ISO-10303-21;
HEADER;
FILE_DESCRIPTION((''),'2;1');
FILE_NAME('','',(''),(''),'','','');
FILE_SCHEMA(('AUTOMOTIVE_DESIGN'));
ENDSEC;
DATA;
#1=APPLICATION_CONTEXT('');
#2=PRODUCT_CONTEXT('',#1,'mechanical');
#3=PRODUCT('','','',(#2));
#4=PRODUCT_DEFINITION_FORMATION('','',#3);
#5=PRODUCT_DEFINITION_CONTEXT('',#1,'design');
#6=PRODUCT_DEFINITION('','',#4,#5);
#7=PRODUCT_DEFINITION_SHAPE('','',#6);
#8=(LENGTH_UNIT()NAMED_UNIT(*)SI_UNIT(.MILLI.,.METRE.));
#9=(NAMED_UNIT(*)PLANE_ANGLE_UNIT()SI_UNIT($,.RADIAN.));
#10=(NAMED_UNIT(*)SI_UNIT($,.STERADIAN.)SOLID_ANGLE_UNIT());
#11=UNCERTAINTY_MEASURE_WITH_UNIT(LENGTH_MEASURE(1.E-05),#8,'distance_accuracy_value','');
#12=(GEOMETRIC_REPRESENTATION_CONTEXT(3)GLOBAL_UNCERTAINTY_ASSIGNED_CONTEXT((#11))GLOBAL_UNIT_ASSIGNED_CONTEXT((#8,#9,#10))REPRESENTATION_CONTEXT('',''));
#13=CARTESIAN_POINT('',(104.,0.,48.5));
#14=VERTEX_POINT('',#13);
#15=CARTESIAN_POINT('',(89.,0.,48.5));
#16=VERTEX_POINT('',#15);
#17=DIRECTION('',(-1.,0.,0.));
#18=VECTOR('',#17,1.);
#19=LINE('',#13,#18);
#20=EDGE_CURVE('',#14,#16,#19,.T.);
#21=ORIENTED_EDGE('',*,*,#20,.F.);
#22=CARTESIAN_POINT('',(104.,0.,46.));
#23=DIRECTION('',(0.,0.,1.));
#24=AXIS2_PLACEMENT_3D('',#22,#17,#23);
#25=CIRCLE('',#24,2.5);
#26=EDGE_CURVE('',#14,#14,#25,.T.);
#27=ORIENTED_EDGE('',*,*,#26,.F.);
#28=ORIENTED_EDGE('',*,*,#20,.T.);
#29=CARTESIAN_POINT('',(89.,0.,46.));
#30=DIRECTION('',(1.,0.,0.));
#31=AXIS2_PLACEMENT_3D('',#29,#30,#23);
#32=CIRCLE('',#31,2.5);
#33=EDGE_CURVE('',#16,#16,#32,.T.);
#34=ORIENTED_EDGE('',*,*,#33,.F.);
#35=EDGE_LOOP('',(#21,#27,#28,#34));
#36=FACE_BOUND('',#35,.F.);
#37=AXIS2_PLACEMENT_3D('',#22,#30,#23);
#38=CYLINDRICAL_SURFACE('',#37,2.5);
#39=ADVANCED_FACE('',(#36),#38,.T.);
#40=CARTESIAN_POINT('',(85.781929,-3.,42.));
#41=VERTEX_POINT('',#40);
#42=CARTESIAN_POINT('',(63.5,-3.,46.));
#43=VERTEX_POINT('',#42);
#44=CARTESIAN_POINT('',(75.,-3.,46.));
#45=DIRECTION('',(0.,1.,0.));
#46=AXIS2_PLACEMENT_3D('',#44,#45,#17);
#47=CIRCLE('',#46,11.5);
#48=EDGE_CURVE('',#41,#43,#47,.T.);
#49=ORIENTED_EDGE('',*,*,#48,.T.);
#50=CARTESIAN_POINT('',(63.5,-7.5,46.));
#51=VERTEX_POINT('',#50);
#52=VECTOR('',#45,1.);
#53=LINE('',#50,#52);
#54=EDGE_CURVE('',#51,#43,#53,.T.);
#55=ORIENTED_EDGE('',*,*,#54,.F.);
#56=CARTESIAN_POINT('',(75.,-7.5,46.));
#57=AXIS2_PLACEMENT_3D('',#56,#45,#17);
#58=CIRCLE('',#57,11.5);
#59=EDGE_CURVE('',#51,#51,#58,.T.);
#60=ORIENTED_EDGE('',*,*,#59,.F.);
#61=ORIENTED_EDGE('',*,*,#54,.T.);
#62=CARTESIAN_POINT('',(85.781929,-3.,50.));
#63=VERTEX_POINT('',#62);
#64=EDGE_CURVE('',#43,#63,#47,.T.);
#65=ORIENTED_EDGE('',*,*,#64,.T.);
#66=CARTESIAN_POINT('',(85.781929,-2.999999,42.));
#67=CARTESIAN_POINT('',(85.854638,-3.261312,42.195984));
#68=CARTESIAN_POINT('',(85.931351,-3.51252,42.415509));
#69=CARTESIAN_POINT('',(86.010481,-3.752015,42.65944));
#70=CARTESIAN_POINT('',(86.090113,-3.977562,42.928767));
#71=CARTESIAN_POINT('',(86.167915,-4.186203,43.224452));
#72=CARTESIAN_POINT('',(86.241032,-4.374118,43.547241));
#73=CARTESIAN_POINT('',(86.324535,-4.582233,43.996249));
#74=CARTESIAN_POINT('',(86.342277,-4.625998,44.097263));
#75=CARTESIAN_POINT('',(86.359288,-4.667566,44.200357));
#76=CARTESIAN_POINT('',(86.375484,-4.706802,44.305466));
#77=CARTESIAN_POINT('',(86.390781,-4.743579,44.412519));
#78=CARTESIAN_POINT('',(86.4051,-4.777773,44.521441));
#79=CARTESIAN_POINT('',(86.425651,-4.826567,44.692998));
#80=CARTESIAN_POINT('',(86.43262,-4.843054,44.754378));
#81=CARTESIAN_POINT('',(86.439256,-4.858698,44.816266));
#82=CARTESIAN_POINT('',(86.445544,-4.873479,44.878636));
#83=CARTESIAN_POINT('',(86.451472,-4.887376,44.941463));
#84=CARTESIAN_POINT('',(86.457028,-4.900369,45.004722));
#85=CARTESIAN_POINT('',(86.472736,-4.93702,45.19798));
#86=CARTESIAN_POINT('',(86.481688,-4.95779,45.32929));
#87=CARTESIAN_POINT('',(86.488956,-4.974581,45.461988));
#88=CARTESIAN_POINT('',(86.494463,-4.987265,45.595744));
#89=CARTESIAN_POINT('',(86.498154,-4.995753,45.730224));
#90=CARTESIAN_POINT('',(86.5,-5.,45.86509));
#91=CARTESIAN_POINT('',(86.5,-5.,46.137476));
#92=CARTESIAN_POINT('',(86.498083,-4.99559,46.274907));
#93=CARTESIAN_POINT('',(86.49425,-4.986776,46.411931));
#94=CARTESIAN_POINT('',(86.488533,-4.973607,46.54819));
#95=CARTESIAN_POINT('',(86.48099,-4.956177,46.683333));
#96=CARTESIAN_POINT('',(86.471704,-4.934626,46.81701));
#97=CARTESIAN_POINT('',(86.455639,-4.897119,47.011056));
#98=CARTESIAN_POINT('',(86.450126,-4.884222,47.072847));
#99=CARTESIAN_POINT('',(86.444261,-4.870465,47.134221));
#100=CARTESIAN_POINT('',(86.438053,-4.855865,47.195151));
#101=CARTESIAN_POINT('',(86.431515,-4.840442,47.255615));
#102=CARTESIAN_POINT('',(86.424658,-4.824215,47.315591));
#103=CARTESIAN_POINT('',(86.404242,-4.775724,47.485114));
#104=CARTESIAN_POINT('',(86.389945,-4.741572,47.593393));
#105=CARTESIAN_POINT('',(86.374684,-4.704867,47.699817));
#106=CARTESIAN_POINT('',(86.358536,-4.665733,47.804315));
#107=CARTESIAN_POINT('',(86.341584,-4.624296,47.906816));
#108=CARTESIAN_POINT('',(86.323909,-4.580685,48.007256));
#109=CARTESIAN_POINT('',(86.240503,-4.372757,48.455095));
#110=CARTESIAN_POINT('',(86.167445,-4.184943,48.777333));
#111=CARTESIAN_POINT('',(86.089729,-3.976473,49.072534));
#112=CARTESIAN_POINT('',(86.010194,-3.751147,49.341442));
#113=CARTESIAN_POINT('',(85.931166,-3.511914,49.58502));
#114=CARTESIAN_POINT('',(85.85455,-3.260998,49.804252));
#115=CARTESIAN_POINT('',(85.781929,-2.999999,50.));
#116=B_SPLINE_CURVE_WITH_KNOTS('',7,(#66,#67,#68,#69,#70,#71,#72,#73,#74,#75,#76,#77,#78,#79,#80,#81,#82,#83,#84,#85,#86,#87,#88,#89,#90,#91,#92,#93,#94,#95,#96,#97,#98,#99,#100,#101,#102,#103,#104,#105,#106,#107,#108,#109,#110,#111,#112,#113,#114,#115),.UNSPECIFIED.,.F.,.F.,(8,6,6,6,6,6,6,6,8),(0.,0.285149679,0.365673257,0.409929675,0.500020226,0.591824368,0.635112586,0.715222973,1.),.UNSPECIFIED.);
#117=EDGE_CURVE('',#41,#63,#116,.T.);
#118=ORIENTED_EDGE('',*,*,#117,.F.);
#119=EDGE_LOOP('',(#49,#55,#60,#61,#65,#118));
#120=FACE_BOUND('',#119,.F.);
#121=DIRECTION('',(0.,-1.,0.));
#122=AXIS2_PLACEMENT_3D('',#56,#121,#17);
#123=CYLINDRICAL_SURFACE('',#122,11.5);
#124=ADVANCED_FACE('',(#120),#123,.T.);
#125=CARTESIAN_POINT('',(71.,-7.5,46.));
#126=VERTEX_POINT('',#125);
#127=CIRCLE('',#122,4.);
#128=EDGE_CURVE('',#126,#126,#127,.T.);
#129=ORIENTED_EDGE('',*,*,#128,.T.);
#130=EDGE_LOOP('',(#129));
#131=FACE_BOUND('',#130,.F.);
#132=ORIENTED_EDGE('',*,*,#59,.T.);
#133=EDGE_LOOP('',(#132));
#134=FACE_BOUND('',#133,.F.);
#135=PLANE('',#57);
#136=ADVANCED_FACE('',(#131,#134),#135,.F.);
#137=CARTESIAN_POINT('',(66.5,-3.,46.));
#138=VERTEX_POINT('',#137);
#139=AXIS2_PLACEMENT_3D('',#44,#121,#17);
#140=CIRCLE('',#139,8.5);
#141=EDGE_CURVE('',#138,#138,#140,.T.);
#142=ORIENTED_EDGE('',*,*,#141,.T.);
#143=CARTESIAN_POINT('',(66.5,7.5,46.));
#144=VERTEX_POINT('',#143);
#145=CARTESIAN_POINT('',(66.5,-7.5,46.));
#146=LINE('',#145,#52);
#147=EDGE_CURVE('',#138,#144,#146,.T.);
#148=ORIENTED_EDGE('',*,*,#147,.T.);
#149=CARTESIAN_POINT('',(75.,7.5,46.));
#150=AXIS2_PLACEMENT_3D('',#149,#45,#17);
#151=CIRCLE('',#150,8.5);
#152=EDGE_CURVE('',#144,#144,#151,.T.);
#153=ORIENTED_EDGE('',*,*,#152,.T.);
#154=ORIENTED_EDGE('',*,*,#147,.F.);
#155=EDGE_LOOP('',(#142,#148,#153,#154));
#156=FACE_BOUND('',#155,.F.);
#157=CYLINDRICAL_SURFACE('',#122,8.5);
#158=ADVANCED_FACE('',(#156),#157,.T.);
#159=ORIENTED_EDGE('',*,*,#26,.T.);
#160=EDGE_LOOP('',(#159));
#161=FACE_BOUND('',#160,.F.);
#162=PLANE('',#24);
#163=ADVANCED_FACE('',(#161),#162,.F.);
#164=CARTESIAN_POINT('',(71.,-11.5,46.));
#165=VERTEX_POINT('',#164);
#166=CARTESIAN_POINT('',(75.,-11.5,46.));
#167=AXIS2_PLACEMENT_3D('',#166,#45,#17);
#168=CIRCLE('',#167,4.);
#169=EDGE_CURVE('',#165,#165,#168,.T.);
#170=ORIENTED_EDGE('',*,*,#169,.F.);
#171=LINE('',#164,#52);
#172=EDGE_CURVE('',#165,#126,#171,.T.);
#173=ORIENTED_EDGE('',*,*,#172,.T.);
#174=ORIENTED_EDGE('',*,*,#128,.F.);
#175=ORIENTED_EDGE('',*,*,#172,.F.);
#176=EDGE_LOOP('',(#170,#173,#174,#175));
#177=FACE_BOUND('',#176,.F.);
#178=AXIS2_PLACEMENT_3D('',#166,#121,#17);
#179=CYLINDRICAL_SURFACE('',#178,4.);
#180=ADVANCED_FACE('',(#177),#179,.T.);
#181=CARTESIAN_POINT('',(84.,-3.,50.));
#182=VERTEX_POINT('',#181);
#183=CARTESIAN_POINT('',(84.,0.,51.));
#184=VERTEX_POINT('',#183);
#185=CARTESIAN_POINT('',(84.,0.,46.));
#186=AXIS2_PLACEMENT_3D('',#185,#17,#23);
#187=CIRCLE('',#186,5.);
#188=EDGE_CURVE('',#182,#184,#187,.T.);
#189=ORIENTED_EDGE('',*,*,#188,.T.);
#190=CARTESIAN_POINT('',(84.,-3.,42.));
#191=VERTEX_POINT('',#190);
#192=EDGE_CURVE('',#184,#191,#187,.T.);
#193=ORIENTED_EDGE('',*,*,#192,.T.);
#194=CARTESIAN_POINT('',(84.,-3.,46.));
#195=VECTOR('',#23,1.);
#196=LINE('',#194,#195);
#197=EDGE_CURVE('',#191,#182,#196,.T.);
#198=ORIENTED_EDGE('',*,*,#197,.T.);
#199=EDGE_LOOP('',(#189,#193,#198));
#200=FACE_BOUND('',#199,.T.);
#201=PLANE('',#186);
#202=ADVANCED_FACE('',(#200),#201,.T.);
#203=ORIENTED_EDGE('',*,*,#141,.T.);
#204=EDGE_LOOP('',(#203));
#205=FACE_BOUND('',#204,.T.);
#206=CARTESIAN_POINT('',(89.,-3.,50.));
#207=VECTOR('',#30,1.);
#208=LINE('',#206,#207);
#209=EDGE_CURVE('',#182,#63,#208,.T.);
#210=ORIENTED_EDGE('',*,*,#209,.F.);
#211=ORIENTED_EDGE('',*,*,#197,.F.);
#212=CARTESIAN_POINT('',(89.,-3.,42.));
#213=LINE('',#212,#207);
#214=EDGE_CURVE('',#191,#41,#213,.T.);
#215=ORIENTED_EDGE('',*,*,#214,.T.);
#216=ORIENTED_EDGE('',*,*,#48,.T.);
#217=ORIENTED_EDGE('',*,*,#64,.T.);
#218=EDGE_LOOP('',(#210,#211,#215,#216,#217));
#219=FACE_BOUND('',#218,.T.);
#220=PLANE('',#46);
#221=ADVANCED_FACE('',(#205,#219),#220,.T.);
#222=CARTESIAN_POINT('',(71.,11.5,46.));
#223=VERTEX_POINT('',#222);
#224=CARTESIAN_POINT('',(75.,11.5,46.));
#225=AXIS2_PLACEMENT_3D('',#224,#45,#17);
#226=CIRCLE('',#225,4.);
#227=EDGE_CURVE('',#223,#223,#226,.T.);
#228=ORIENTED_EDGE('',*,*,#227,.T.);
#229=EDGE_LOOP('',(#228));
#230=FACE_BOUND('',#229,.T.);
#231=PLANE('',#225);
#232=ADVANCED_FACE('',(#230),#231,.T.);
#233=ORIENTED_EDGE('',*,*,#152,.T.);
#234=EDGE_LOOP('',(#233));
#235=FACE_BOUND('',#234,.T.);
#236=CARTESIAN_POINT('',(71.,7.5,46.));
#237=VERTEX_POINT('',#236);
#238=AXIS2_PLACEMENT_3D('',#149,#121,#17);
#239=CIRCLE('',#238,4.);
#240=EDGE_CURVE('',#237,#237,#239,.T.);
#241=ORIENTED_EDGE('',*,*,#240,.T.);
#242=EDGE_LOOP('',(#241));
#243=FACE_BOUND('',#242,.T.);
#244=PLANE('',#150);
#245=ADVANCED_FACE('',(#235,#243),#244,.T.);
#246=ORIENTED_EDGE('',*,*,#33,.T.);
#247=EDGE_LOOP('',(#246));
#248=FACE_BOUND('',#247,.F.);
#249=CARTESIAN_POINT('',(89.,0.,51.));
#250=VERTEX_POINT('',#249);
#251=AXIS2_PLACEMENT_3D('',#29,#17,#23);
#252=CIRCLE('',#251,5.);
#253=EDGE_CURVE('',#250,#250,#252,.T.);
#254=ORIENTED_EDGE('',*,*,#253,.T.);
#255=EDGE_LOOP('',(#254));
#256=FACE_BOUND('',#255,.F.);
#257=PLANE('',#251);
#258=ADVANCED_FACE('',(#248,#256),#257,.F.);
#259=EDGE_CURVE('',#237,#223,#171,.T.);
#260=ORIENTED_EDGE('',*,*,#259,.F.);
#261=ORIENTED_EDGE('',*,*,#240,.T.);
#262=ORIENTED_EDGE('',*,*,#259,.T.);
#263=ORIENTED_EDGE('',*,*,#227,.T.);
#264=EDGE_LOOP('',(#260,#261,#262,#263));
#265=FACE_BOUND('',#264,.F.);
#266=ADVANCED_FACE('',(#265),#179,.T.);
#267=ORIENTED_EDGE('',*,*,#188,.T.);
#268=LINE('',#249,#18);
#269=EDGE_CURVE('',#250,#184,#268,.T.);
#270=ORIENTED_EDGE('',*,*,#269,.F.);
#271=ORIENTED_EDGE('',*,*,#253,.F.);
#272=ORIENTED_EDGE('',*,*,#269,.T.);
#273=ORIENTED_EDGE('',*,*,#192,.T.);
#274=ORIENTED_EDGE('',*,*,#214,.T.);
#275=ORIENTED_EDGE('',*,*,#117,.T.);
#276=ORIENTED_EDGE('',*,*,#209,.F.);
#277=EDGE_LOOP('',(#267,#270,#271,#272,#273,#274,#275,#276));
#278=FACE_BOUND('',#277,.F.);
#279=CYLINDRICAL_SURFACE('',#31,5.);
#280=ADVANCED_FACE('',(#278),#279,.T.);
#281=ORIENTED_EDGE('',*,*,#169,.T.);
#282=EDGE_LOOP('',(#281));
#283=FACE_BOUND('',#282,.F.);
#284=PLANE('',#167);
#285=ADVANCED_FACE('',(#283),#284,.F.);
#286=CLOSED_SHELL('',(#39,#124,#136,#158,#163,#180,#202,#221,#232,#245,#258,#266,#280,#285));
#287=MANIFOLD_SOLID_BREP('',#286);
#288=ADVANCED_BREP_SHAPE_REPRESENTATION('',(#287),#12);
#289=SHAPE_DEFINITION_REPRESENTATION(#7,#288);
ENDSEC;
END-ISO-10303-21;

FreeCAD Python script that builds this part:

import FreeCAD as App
import Part
import Sketcher

doc = App.newDocument("Part")
params = doc.addObject("Spreadsheet::Sheet", "Params")
for row, (alias, value) in enumerate([
    ("sketch1_diameter", "10 mm"),
    ("pad1_length", "5 mm"),
    ("sketch2_diameter", "5 mm"),
    ("pad2_length", "20 mm"),
    ("sketch3_diameter", "23 mm"),
    ("pad3_length", "4.5 mm"),
    ("sketch4_diameter", "8 mm"),
    ("pad4_length", "23 mm"),
    ("sketch5_diameter", "17 mm"),
    ("pad5_length", "15 mm"),
], start=1):
    params.set(f"A{row}", alias)
    params.set(f"B{row}", "=" + value)
    params.setAlias(f"B{row}", alias)

body = doc.addObject("PartDesign::Body", "Body")

sketch1 = body.newObject("Sketcher::SketchObject", "Sketch")
sketch1.AttachmentSupport = (doc.getObject("YZ_Plane"), [""])
sketch1.MapMode = "FlatFace"
sketch1.AttachmentOffset = App.Placement(App.Vector(0, 0, 15), App.Rotation())
sketch1.addGeometry(Part.Circle(App.Vector(0, 0, 0), App.Vector(0, 0, 1), 5), False)
sketch1.addConstraint([
    Sketcher.Constraint("Coincident", 0, 3, -1, 1),
    Sketcher.Constraint("Diameter", 0, 10.0),
])
sketch1.setExpression("Constraints[1]", "Params.sketch1_diameter")
pad1 = body.newObject("PartDesign::Pad", "Pad")
pad1.Profile = sketch1
pad1.setExpression("Length", "Params.pad1_length")
body2 = doc.addObject("PartDesign::Body", "Body001")

sketch2 = body2.newObject("Sketcher::SketchObject", "Sketch001")
sketch2.AttachmentSupport = (doc.getObject("YZ_Plane001"), [""])
sketch2.MapMode = "FlatFace"
sketch2.addGeometry(Part.Circle(App.Vector(0, 0, 0), App.Vector(0, 0, 1), 2.5), False)
sketch2.addConstraint([
    Sketcher.Constraint("Coincident", 0, 3, -1, 1),
    Sketcher.Constraint("Diameter", 0, 5.0),
])
sketch2.setExpression("Constraints[1]", "Params.sketch2_diameter")
pad2 = body2.newObject("PartDesign::Pad", "Pad001")
pad2.Profile = sketch2
pad2.setExpression("Length", "Params.pad2_length")
doc.recompute()

boolean = body2.newObject("PartDesign::Boolean", "Boolean")
boolean.Type = "Fuse"
boolean.addObjects([body])
body3 = doc.addObject("PartDesign::Body", "Body002")
doc.recompute()

body2.Placement = App.Placement(App.Vector(-21.5, 54.5, 7.5), App.Rotation(App.Vector(0, 0, 1), 0))
boolean2 = body3.newObject("PartDesign::Boolean", "Boolean001")
boolean2.Type = "Fuse"
boolean2.addObjects([body2])
body4 = doc.addObject("PartDesign::Body", "Body003")

sketch3 = body4.newObject("Sketcher::SketchObject", "Sketch002")
sketch3.AttachmentSupport = (doc.getObject("XY_Plane003"), [""])
sketch3.MapMode = "FlatFace"
sketch3.AttachmentOffset = App.Placement(App.Vector(0, 0, -1), App.Rotation())
sketch3.addGeometry(Part.Circle(App.Vector(0, 0, 0), App.Vector(0, 0, 1), 12), False)
sketch3.addConstraint([
    Sketcher.Constraint("Coincident", 0, 3, -1, 1),
    Sketcher.Constraint("Diameter", 0, 23.0),
])
sketch3.setExpression("Constraints[1]", "Params.sketch3_diameter")
pad3 = body4.newObject("PartDesign::Pad", "Pad002")
pad3.Profile = sketch3
pad3.setExpression("Length", "Params.pad3_length")
body5 = doc.addObject("PartDesign::Body", "Body004")

sketch4 = body5.newObject("Sketcher::SketchObject", "Sketch003")
sketch4.AttachmentSupport = (doc.getObject("XY_Plane004"), [""])
sketch4.MapMode = "FlatFace"
sketch4.AttachmentOffset = App.Placement(App.Vector(0, 0, -5), App.Rotation())
sketch4.addGeometry(Part.Circle(App.Vector(0, 0, 0), App.Vector(0, 0, 1), 4), False)
sketch4.addConstraint([
    Sketcher.Constraint("Coincident", 0, 3, -1, 1),
    Sketcher.Constraint("Diameter", 0, 8.0),
])
sketch4.setExpression("Constraints[1]", "Params.sketch4_diameter")
pad4 = body5.newObject("PartDesign::Pad", "Pad003")
pad4.Profile = sketch4
pad4.setExpression("Length", "Params.pad4_length")
body6 = doc.addObject("PartDesign::Body", "Body005")

sketch5 = body6.newObject("Sketcher::SketchObject", "Sketch004")
sketch5.AttachmentSupport = (doc.getObject("XY_Plane005"), [""])
sketch5.MapMode = "FlatFace"
sketch5.AttachmentOffset = App.Placement(App.Vector(0, 0, -1), App.Rotation())
sketch5.addGeometry(Part.Circle(App.Vector(0, 0, 0), App.Vector(0, 0, 1), 8), False)
sketch5.addConstraint([
    Sketcher.Constraint("Coincident", 0, 3, -1, 1),
    Sketcher.Constraint("Diameter", 0, 17.0),
])
sketch5.setExpression("Constraints[1]", "Params.sketch5_diameter")
pad5 = body6.newObject("PartDesign::Pad", "Pad004")
pad5.Profile = sketch5
pad5.setExpression("Length", "Params.pad5_length")
doc.recompute()

boolean3 = body6.newObject("PartDesign::Boolean", "Boolean002")
boolean3.Type = "Fuse"
boolean3.addObjects([body4])
doc.recompute()

boolean4 = body6.newObject("PartDesign::Boolean", "Boolean003")
boolean4.Type = "Fuse"
boolean4.addObjects([body5])
body7 = doc.addObject("PartDesign::Body", "Body006")
doc.recompute()

body6.Placement = App.Placement(App.Vector(7.5, 48, 7.5), App.Rotation(App.Vector(-1, 0, 0), 90))
boolean5 = body7.newObject("PartDesign::Boolean", "Boolean004")
boolean5.Type = "Fuse"
boolean5.addObjects([body6])
doc.recompute()

boolean6 = body7.newObject("PartDesign::Boolean", "Boolean005")
boolean6.Type = "Fuse"
boolean6.addObjects([body3])
body8 = doc.addObject("PartDesign::Body", "Body007")
doc.recompute()

body7.Placement = App.Placement(App.Vector(82.5, -54.5, 53.5), App.Rotation(App.Vector(0, 1, 0), 180))
boolean7 = body8.newObject("PartDesign::Boolean", "Boolean006")
boolean7.Type = "Fuse"
boolean7.addObjects([body7])

doc.recompute()
